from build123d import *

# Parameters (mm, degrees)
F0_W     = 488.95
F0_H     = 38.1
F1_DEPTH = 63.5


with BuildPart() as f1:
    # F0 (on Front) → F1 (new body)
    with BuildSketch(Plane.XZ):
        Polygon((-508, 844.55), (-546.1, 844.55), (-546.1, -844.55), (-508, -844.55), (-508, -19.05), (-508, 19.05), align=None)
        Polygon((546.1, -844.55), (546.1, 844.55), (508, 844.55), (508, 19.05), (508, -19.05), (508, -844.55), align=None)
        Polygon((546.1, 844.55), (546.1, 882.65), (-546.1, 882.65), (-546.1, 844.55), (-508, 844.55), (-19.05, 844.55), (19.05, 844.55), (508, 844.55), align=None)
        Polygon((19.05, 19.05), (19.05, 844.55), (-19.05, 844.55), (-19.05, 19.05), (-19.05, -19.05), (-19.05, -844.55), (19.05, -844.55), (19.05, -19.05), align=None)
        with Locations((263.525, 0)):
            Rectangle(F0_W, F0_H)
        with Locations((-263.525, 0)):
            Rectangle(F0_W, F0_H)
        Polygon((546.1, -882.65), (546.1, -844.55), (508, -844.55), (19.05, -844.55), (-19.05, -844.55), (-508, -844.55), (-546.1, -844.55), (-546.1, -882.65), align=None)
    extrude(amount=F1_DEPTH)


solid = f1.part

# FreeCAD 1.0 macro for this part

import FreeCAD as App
import Part
import Sketcher
Q = App.Units.Quantity

doc = App.newDocument("Part")
body = doc.addObject("PartDesign::Body", "Body")

sketch1 = doc.addObject("Sketcher::SketchObject", "Sketch")
body.addObject(sketch1)
sketch1.AttachmentSupport = (doc.XZ_Plane, [""])
sketch1.MapMode = "FlatFace"
sketch1.addGeometry([
    Part.LineSegment(App.Vector(546, 883, 0), App.Vector(-546, 883, 0)),
    Part.LineSegment(App.Vector(-546, 883, 0), App.Vector(-546, -883, 0)),
    Part.LineSegment(App.Vector(-546, -883, 0), App.Vector(546, -883, 0)),
    Part.LineSegment(App.Vector(546, -883, 0), App.Vector(546, 883, 0)),
    Part.LineSegment(App.Vector(-508, -845, 0), App.Vector(-508, -19, 0)),
    Part.LineSegment(App.Vector(-508, -19, 0), App.Vector(-19, -19, 0)),
    Part.LineSegment(App.Vector(-19, -19, 0), App.Vector(-19, -845, 0)),
    Part.LineSegment(App.Vector(-19, -845, 0), App.Vector(-508, -845, 0)),
    Part.LineSegment(App.Vector(19, -845, 0), App.Vector(19, -19, 0)),
    Part.LineSegment(App.Vector(19, -19, 0), App.Vector(508, -19, 0)),
    Part.LineSegment(App.Vector(508, -19, 0), App.Vector(508, -845, 0)),
    Part.LineSegment(App.Vector(508, -845, 0), App.Vector(19, -845, 0)),
    Part.LineSegment(App.Vector(-508, 19, 0), App.Vector(-508, 845, 0)),
    Part.LineSegment(App.Vector(-508, 845, 0), App.Vector(-19, 845, 0)),
    Part.LineSegment(App.Vector(-19, 845, 0), App.Vector(-19, 19, 0)),
    Part.LineSegment(App.Vector(-19, 19, 0), App.Vector(-508, 19, 0)),
    Part.LineSegment(App.Vector(19, 19, 0), App.Vector(19, 845, 0)),
    Part.LineSegment(App.Vector(19, 845, 0), App.Vector(508, 845, 0)),
    Part.LineSegment(App.Vector(508, 845, 0), App.Vector(508, 19, 0)),
    Part.LineSegment(App.Vector(508, 19, 0), App.Vector(19, 19, 0)),
], False)
sketch1.addConstraint([
    Sketcher.Constraint("Coincident", 0, 2, 1, 1),
    Sketcher.Constraint("Coincident", 1, 2, 2, 1),
    Sketcher.Constraint("Coincident", 2, 2, 3, 1),
    Sketcher.Constraint("Coincident", 3, 2, 0, 1),
    Sketcher.Constraint("Coincident", 4, 2, 5, 1),
    Sketcher.Constraint("Coincident", 5, 2, 6, 1),
    Sketcher.Constraint("Coincident", 6, 2, 7, 1),
    Sketcher.Constraint("Coincident", 7, 2, 4, 1),
    Sketcher.Constraint("Coincident", 8, 2, 9, 1),
    Sketcher.Constraint("Coincident", 9, 2, 10, 1),
    Sketcher.Constraint("Coincident", 10, 2, 11, 1),
    Sketcher.Constraint("Coincident", 11, 2, 8, 1),
    Sketcher.Constraint("Coincident", 12, 2, 13, 1),
    Sketcher.Constraint("Coincident", 13, 2, 14, 1),
    Sketcher.Constraint("Coincident", 14, 2, 15, 1),
    Sketcher.Constraint("Coincident", 15, 2, 12, 1),
    Sketcher.Constraint("Coincident", 16, 2, 17, 1),
    Sketcher.Constraint("Coincident", 17, 2, 18, 1),
    Sketcher.Constraint("Coincident", 18, 2, 19, 1),
    Sketcher.Constraint("Coincident", 19, 2, 16, 1),
    Sketcher.Constraint("Horizontal", 0),
    Sketcher.Constraint("Vertical", 1),
    Sketcher.Constraint("Horizontal", 2),
    Sketcher.Constraint("Vertical", 3),
    Sketcher.Constraint("Vertical", 4),
    Sketcher.Constraint("Horizontal", 5),
    Sketcher.Constraint("Vertical", 6),
    Sketcher.Constraint("Horizontal", 7),
    Sketcher.Constraint("Vertical", 8),
    Sketcher.Constraint("Horizontal", 9),
    Sketcher.Constraint("Vertical", 10),
    Sketcher.Constraint("Horizontal", 11),
    Sketcher.Constraint("Vertical", 12),
    Sketcher.Constraint("Horizontal", 13),
    Sketcher.Constraint("Vertical", 14),
    Sketcher.Constraint("Horizontal", 15),
    Sketcher.Constraint("Vertical", 16),
    Sketcher.Constraint("Horizontal", 17),
    Sketcher.Constraint("Vertical", 18),
    Sketcher.Constraint("Horizontal", 19),
    Sketcher.Constraint("Symmetric", 0, 2, 2, 2, -1, 1),
    Sketcher.Constraint("Symmetric", 10, 2, 12, 2, -1, 1),
    Sketcher.Constraint("Symmetric", 8, 2, 14, 2, -1, 1),
    Sketcher.Constraint("Symmetric", 6, 2, 16, 2, -1, 1),
    Sketcher.Constraint("Symmetric", 4, 2, 18, 2, -1, 1),
    Sketcher.Constraint("Symmetric", 5, 2, 8, 2, -2),
    Sketcher.Constraint("Symmetric", 7, 2, 10, 2, -2),
    Sketcher.Constraint("DistanceX", 0, 2, 0, 1, Q("43 in")),
    Sketcher.Constraint("DistanceY", 1, 2, 1, 1, Q("69.5 in")),
    Sketcher.Constraint("DistanceY", 4, 1, 4, 2, Q("32.5 in")),
    Sketcher.Constraint("DistanceX", 4, 2, -1, 1, Q("20 in")),
    Sketcher.Constraint("DistanceY", 1, 2, 4, 2, Q("34 in")),
    Sketcher.Constraint("DistanceX", 5, 1, 5, 2, Q("19.25 in")),
])
pad1 = doc.addObject("PartDesign::Pad", "Pad")
body.addObject(pad1)
pad1.Profile = sketch1
pad1.Length = Q("2.5 in")

doc.recompute()
